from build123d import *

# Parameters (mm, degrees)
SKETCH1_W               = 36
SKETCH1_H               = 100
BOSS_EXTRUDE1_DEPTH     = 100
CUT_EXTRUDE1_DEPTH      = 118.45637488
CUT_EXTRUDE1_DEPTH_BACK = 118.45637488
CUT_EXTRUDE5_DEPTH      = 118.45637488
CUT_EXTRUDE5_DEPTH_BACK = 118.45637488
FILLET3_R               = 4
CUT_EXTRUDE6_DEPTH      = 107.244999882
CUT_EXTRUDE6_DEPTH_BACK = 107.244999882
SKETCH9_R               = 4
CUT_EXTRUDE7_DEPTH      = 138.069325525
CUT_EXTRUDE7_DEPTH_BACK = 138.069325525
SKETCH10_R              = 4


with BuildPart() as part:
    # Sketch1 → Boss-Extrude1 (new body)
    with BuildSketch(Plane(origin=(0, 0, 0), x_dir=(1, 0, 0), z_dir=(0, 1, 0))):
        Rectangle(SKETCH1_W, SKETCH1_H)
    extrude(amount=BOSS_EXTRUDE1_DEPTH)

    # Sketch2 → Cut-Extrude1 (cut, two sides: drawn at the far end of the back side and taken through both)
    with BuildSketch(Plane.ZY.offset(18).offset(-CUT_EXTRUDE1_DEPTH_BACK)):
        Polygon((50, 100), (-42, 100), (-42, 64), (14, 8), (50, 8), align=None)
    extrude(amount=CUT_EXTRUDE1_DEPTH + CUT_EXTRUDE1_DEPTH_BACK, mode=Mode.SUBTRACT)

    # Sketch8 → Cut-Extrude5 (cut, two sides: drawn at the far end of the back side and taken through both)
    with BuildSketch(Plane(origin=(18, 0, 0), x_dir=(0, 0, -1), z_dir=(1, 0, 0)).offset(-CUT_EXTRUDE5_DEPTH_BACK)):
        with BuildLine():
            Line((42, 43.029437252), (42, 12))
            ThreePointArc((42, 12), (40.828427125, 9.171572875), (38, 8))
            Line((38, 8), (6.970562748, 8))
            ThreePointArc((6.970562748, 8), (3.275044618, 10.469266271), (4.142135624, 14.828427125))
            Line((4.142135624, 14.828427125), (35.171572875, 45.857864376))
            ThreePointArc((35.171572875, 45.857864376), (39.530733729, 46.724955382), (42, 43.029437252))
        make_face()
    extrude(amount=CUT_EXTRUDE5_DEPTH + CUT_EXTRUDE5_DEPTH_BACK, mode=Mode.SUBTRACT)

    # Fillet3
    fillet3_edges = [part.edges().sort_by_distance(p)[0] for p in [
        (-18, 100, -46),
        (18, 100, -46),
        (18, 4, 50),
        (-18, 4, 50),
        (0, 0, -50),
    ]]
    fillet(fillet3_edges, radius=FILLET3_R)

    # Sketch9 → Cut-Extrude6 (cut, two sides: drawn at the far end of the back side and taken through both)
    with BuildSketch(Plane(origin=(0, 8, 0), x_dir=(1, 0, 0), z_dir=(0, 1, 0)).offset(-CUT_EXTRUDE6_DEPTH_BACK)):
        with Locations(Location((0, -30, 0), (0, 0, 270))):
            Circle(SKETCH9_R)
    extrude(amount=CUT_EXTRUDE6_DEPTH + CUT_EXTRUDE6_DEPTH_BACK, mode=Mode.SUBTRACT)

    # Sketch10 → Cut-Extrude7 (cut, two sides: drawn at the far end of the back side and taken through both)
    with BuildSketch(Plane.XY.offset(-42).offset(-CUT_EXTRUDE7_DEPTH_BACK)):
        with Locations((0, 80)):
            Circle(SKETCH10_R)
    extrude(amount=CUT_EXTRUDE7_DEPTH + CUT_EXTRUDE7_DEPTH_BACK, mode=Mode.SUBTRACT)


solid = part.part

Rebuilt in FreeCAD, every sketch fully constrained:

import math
import FreeCAD as App
import Part
import Sketcher

V = App.Vector
Q = App.Units.Quantity


def edges_at(feature, points):
    """Names of the edges that pass closest to the given points."""
    edges = feature.Shape.Edges
    near = lambda p: min(range(len(edges)), key=lambda i: edges[i].distToShape(Part.Vertex(*p))[0])
    return sorted({f"Edge{near(p) + 1}" for p in points})

doc = App.newDocument("Part")
body = doc.addObject("PartDesign::Body", "Body")

sketch1 = body.newObject("Sketcher::SketchObject", "Sketch")
sketch1.AttachmentSupport = (doc.getObject("XZ_Plane"), [""])
sketch1.MapMode = "FlatFace"
sketch1.addGeometry(Part.LineSegment(V(-18, -50, 0), V(-18, 50, 0)), False)
sketch1.addGeometry(Part.LineSegment(V(-18, 50, 0), V(18, 50, 0)), False)
sketch1.addGeometry(Part.LineSegment(V(18, 50, 0), V(18, -50, 0)), False)
sketch1.addGeometry(Part.LineSegment(V(18, -50, 0), V(-18, -50, 0)), False)
sketch1.addConstraint(Sketcher.Constraint("Coincident", 0, 2, 1, 1))
sketch1.addConstraint(Sketcher.Constraint("Coincident", 1, 2, 2, 1))
sketch1.addConstraint(Sketcher.Constraint("Coincident", 2, 2, 3, 1))
sketch1.addConstraint(Sketcher.Constraint("Coincident", 3, 2, 0, 1))
sketch1.addConstraint(Sketcher.Constraint("Vertical", 0))
sketch1.addConstraint(Sketcher.Constraint("Horizontal", 1))
sketch1.addConstraint(Sketcher.Constraint("Vertical", 2))
sketch1.addConstraint(Sketcher.Constraint("Horizontal", 3))
sketch1.addConstraint(Sketcher.Constraint("Symmetric", 0, 2, 2, 2, -1, 1))
sketch1.addConstraint(Sketcher.Constraint("DistanceX", 1, 1, 1, 2, Q("36 mm")))
sketch1.addConstraint(Sketcher.Constraint("DistanceY", 0, 1, 0, 2, Q("100 mm")))
pad1 = body.newObject("PartDesign::Pad", "Pad")
pad1.Profile = sketch1
pad1.Length = 100
pad1.Reversed = True

sketch2 = body.newObject("Sketcher::SketchObject", "Sketch001")
sketch2.AttachmentSupport = (doc.getObject("YZ_Plane"), [""])
sketch2.MapMode = "FlatFace"
sketch2.AttachmentOffset = App.Placement(V(0, 0, -18), App.Rotation())
sketch2.addGeometry(Part.LineSegment(V(100, 50, 0), V(100, -42, 0)), False)
sketch2.addGeometry(Part.LineSegment(V(100, -42, 0), V(64, -42, 0)), False)
sketch2.addGeometry(Part.LineSegment(V(64, -42, 0), V(8, 14, 0)), False)
sketch2.addGeometry(Part.LineSegment(V(8, 14, 0), V(8, 50, 0)), False)
sketch2.addGeometry(Part.LineSegment(V(8, 50, 0), V(100, 50, 0)), False)
sketch2.addConstraint(Sketcher.Constraint("Coincident", 0, 2, 1, 1))
sketch2.addConstraint(Sketcher.Constraint("Coincident", 1, 2, 2, 1))
sketch2.addConstraint(Sketcher.Constraint("Coincident", 2, 2, 3, 1))
sketch2.addConstraint(Sketcher.Constraint("Coincident", 3, 2, 4, 1))
sketch2.addConstraint(Sketcher.Constraint("Coincident", 4, 2, 0, 1))
sketch2.addConstraint(Sketcher.Constraint("Vertical", 0))
sketch2.addConstraint(Sketcher.Constraint("Horizontal", 1))
sketch2.addConstraint(Sketcher.Constraint("Vertical", 3))
sketch2.addConstraint(Sketcher.Constraint("Horizontal", 4))
sketch2.addConstraint(Sketcher.Constraint("Equal", 4, 0))
sketch2.addConstraint(Sketcher.Constraint("Equal", 1, 3))
sketch2.addConstraint(Sketcher.Constraint("DistanceX", 1, 2, 1, 1, Q("36 mm")))
sketch2.addConstraint(Sketcher.Constraint("DistanceX", 4, 1, 4, 2, Q("92 mm")))
sketch2.addConstraint(Sketcher.Constraint("DistanceX", -1, 1, 0, 2, Q("100 mm")))
sketch2.addConstraint(Sketcher.Constraint("DistanceY", 0, 2, -1, 1, Q("42 mm")))
pocket1 = body.newObject("PartDesign::Pocket", "Pocket")
pocket1.Profile = sketch2
pocket1.Type = "ThroughAll"
pocket1.Midplane = True

sketch3 = body.newObject("Sketcher::SketchObject", "Sketch002")
sketch3.AttachmentSupport = (doc.getObject("YZ_Plane"), [""])
sketch3.MapMode = "FlatFace"
sketch3.AttachmentOffset = App.Placement(V(0, 0, 18), App.Rotation())
sketch3.addGeometry(Part.LineSegment(V(12, -42, 0), V(43, -42, 0)), False)
sketch3.addGeometry(Part.ArcOfCircle(Part.Circle(V(43, -38, 0), V(0, 0, 1), 4), math.radians(-90), math.radians(45)), False)
sketch3.addGeometry(Part.LineSegment(V(45.9, -35.2, 0), V(14.8, -4.1, 0)), False)
sketch3.addGeometry(Part.ArcOfCircle(Part.Circle(V(12, -7, 0), V(0, 0, 1), 4), math.radians(45), math.radians(180)), False)
sketch3.addGeometry(Part.LineSegment(V(8, -7, 0), V(8, -38, 0)), False)
sketch3.addGeometry(Part.ArcOfCircle(Part.Circle(V(12, -38, 0), V(0, 0, 1), 4), math.radians(180), math.radians(270)), False)
sketch3.addConstraint(Sketcher.Constraint("Tangent", 0, 2, 1, 1))
sketch3.addConstraint(Sketcher.Constraint("Tangent", 1, 2, 2, 1))
sketch3.addConstraint(Sketcher.Constraint("Tangent", 2, 2, 3, 1))
sketch3.addConstraint(Sketcher.Constraint("Tangent", 3, 2, 4, 1))
sketch3.addConstraint(Sketcher.Constraint("Tangent", 4, 2, 5, 1))
sketch3.addConstraint(Sketcher.Constraint("Tangent", 5, 2, 0, 1))
sketch3.addConstraint(Sketcher.Constraint("Horizontal", 0))
sketch3.addConstraint(Sketcher.Constraint("Vertical", 4))
sketch3.addConstraint(Sketcher.Constraint("Equal", 1, 3))
sketch3.addConstraint(Sketcher.Constraint("Equal", 3, 5))
sketch3.addConstraint(Sketcher.Constraint("Equal", 0, 4))
sketch3.addConstraint(Sketcher.Constraint("Radius", 1, Q("4 mm")))
sketch3.addConstraint(Sketcher.Constraint("DistanceY", 1, 3, -1, 1, Q("38 mm")))
sketch3.addConstraint(Sketcher.Constraint("DistanceX", -1, 1, 3, 3, Q("12 mm")))
sketch3.addConstraint(Sketcher.Constraint("Distance", 2, Q("43.882251 mm")))
pocket2 = body.newObject("PartDesign::Pocket", "Pocket001")
pocket2.Profile = sketch3
pocket2.Type = "ThroughAll"
pocket2.Midplane = True
doc.recompute()

fillet = body.newObject("PartDesign::Fillet", "Fillet")
fillet.Base = (pocket2, edges_at(pocket2, [
    (-18, 100, -46),
    (18, 100, -46),
    (18, 4, 50),
    (-18, 4, 50),
    (0, 0, -50),
]))
fillet.Radius = 4

sketch4 = body.newObject("Sketcher::SketchObject", "Sketch003")
sketch4.AttachmentSupport = (doc.getObject("XZ_Plane"), [""])
sketch4.MapMode = "FlatFace"
sketch4.AttachmentOffset = App.Placement(V(0, 0, -8), App.Rotation())
sketch4.addGeometry(Part.Circle(V(0, 30, 0), V(0, 0, 1), 4), False)
sketch4.addConstraint(Sketcher.Constraint("PointOnObject", 0, 3, -2))
sketch4.addConstraint(Sketcher.Constraint("Diameter", 0, Q("8 mm")))
sketch4.addConstraint(Sketcher.Constraint("DistanceY", -1, 1, 0, 3, Q("30 mm")))
pocket3 = body.newObject("PartDesign::Pocket", "Pocket002")
pocket3.Profile = sketch4
pocket3.Type = "ThroughAll"
pocket3.Midplane = True

sketch5 = body.newObject("Sketcher::SketchObject", "Sketch004")
sketch5.AttachmentSupport = (doc.getObject("XY_Plane"), [""])
sketch5.MapMode = "FlatFace"
sketch5.AttachmentOffset = App.Placement(V(0, 0, -42), App.Rotation())
sketch5.addGeometry(Part.Circle(V(0, 80, 0), V(0, 0, 1), 4), False)
sketch5.addConstraint(Sketcher.Constraint("PointOnObject", 0, 3, -2))
sketch5.addConstraint(Sketcher.Constraint("Diameter", 0, Q("8 mm")))
sketch5.addConstraint(Sketcher.Constraint("DistanceY", -1, 1, 0, 3, Q("80 mm")))
pocket4 = body.newObject("PartDesign::Pocket", "Pocket003")
pocket4.Profile = sketch5
pocket4.Type = "ThroughAll"
pocket4.Midplane = True

doc.recompute()
